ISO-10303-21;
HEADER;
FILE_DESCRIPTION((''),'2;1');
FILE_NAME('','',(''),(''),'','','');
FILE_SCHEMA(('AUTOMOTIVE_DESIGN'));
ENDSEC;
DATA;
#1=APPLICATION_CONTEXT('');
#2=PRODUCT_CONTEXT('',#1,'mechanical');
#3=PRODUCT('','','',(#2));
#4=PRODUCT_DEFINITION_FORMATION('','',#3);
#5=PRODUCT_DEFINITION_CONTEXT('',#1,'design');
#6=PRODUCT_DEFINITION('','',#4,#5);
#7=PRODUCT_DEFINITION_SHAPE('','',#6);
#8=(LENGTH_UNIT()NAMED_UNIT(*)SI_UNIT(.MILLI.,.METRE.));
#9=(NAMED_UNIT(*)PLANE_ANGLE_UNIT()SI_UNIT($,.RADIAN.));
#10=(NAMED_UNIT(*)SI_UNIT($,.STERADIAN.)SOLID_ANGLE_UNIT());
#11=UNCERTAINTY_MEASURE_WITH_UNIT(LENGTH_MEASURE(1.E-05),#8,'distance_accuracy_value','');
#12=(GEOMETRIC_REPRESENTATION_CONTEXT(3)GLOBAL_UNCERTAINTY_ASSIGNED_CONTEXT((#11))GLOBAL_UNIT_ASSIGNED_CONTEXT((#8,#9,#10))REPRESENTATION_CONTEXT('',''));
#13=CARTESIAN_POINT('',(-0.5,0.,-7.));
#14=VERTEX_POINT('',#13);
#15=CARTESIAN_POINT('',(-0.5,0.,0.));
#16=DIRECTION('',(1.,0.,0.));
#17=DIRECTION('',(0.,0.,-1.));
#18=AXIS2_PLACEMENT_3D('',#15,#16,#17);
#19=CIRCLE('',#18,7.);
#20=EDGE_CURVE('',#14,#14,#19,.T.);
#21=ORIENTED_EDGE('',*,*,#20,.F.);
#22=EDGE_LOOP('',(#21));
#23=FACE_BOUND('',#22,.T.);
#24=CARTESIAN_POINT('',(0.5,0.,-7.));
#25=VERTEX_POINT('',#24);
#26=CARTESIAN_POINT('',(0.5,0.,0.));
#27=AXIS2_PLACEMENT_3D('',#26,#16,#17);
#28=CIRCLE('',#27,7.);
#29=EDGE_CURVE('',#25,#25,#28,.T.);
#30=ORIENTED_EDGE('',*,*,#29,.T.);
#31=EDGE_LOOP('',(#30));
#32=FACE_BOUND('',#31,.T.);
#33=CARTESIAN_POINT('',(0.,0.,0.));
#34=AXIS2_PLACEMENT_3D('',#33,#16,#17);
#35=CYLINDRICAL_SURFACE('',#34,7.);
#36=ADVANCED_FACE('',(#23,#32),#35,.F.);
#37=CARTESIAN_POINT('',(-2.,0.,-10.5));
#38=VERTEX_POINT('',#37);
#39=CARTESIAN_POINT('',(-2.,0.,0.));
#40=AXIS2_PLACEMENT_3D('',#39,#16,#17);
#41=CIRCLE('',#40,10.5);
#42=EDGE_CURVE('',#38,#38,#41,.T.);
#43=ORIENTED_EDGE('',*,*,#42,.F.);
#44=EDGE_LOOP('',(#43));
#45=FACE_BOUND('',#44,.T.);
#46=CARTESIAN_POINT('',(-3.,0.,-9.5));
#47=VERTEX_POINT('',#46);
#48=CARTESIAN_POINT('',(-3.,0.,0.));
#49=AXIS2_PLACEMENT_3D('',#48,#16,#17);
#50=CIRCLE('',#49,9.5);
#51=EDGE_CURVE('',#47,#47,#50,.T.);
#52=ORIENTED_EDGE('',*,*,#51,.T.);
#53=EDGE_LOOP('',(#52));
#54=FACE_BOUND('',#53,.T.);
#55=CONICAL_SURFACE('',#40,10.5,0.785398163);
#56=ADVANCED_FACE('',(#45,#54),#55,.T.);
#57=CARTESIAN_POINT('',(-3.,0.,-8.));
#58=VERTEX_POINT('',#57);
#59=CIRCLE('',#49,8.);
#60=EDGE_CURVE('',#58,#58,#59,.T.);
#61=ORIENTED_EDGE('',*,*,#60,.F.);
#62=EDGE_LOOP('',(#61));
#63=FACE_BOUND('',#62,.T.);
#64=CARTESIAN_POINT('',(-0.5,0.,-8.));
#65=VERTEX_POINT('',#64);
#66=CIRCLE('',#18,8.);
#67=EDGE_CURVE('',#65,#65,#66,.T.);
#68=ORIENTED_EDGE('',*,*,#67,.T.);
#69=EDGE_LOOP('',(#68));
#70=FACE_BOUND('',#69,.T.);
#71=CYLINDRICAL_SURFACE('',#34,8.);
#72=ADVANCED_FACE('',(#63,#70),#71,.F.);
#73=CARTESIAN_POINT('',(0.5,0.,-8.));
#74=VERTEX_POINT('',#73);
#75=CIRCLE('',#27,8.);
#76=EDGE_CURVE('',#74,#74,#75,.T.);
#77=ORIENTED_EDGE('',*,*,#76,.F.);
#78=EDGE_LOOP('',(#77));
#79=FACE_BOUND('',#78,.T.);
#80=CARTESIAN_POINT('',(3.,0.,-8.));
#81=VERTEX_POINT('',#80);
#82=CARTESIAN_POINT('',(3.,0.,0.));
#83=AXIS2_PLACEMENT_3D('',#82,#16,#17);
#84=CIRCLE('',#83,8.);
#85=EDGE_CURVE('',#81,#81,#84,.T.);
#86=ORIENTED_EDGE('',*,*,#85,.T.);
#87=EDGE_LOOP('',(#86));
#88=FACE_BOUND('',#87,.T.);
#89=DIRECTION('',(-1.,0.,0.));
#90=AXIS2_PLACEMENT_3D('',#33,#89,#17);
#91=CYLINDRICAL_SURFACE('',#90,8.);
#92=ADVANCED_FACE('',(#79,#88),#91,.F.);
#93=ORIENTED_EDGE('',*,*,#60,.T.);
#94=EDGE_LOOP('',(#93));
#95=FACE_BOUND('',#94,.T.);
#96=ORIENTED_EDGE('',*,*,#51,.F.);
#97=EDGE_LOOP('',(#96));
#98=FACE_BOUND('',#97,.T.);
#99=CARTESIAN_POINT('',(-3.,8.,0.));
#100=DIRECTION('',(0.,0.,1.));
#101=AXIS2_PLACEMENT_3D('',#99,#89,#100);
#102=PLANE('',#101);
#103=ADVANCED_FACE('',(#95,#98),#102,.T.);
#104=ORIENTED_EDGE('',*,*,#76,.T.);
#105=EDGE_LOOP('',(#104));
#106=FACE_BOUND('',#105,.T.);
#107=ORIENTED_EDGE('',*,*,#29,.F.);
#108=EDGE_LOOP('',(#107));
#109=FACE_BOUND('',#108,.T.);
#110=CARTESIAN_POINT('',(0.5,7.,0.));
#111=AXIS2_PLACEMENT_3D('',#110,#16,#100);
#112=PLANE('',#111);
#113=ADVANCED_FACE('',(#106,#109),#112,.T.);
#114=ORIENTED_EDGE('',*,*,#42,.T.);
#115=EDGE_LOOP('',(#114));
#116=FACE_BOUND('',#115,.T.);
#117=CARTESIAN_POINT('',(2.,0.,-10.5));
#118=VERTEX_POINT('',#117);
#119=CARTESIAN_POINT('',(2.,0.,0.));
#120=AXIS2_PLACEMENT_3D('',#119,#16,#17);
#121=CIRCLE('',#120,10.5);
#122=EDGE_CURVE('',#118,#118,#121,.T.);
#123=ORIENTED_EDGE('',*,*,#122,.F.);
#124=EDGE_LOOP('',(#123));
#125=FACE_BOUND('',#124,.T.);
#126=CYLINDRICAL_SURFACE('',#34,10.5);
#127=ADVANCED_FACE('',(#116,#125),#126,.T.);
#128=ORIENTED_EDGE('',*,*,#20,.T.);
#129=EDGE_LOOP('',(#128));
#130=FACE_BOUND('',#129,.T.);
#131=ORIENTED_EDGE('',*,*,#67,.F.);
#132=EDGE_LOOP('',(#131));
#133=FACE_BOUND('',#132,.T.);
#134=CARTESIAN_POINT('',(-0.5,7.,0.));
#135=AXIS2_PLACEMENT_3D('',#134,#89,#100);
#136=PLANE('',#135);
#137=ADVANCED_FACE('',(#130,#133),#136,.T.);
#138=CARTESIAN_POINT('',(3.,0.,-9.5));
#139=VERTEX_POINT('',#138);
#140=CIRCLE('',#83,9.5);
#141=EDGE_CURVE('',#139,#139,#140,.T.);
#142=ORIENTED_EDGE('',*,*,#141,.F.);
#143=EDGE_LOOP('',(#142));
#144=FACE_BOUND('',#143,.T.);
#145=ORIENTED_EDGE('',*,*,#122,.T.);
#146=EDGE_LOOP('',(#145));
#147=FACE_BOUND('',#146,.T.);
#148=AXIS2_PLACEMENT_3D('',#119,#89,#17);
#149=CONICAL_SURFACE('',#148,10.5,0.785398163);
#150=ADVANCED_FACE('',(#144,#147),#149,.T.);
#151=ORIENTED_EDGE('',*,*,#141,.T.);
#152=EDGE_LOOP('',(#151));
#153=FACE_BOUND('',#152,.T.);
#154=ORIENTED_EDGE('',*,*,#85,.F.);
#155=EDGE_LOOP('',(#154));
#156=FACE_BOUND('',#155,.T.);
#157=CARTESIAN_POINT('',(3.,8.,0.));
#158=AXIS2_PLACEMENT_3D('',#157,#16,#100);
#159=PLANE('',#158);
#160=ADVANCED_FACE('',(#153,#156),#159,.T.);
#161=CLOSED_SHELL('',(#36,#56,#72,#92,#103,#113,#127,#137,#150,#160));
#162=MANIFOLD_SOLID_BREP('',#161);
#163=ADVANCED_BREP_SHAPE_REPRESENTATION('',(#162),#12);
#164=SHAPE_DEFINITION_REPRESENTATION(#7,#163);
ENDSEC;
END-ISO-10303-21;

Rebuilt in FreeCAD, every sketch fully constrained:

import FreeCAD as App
import Part
import Sketcher

V = App.Vector
Q = App.Units.Quantity

doc = App.newDocument("Part")
body = doc.addObject("PartDesign::Body", "Body")

# Sketch on XY plane
sketch1 = doc.addObject("Sketcher::SketchObject", "Sketch")
body.addObject(sketch1)
sketch1.AttachmentSupport = (doc.XY_Plane, [""])
sketch1.MapMode = "FlatFace"
sketch1.addGeometry([
    Part.LineSegment(V(-0.5, 7, 0), V(0, 7, 0)),  # 0
    Part.LineSegment(V(0, 7, 0), V(0, 10.5, 0)),  # 1
    Part.LineSegment(V(0, 10.5, 0), V(-2, 10.5, 0)),  # 2
    Part.LineSegment(V(-2, 10.5, 0), V(-3, 9.5, 0)),  # 3
    Part.LineSegment(V(-3, 9.5, 0), V(-3, 8, 0)),  # 4
    Part.LineSegment(V(-3, 8, 0), V(-0.5, 8, 0)),  # 5
    Part.LineSegment(V(-0.5, 8, 0), V(-0.5, 7, 0)),  # 6
], False)
sketch1.addConstraint([
    Sketcher.Constraint("Coincident", 0, 2, 1, 1),
    Sketcher.Constraint("Coincident", 1, 2, 2, 1),
    Sketcher.Constraint("Coincident", 2, 2, 3, 1),
    Sketcher.Constraint("Coincident", 3, 2, 4, 1),
    Sketcher.Constraint("Coincident", 4, 2, 5, 1),
    Sketcher.Constraint("Coincident", 5, 2, 6, 1),
    Sketcher.Constraint("Coincident", 6, 2, 0, 1),
    Sketcher.Constraint("Horizontal", 0),
    Sketcher.Constraint("Vertical", 1),
    Sketcher.Constraint("Horizontal", 2),
    Sketcher.Constraint("Vertical", 4),
    Sketcher.Constraint("Horizontal", 5),
    Sketcher.Constraint("Vertical", 6),
    Sketcher.Constraint("PointOnObject", 0, 2, -2),
    Sketcher.Constraint("DistanceX", 2, 2, 2, 1, Q("2 mm")),
    Sketcher.Constraint("DistanceY", 6, 2, 6, 1, Q("1 mm")),
    Sketcher.Constraint("Angle", 3, Q("-135 deg")),
    Sketcher.Constraint("DistanceX", 0, 1, 0, 2, Q("0.5 mm")),
    Sketcher.Constraint("DistanceX", 5, 1, 5, 2, Q("2.5 mm")),
    Sketcher.Constraint("DistanceY", 1, 1, 1, 2, Q("3.5 mm")),
    Sketcher.Constraint("DistanceY", -1, 1, 0, 2, Q("7 mm")),
])
revolution = doc.addObject("PartDesign::Revolution", "Revolution")
body.addObject(revolution)
revolution.Profile = sketch1
revolution.ReferenceAxis = (sketch1, ["H_Axis"])
revolution.Angle = 360
doc.recompute()

mirrored = doc.addObject("PartDesign::Mirrored", "Mirrored")
body.addObject(mirrored)
mirrored.Originals = [revolution]
mirrored.MirrorPlane = (doc.YZ_Plane, [""])
body.Tip = mirrored

doc.recompute()
